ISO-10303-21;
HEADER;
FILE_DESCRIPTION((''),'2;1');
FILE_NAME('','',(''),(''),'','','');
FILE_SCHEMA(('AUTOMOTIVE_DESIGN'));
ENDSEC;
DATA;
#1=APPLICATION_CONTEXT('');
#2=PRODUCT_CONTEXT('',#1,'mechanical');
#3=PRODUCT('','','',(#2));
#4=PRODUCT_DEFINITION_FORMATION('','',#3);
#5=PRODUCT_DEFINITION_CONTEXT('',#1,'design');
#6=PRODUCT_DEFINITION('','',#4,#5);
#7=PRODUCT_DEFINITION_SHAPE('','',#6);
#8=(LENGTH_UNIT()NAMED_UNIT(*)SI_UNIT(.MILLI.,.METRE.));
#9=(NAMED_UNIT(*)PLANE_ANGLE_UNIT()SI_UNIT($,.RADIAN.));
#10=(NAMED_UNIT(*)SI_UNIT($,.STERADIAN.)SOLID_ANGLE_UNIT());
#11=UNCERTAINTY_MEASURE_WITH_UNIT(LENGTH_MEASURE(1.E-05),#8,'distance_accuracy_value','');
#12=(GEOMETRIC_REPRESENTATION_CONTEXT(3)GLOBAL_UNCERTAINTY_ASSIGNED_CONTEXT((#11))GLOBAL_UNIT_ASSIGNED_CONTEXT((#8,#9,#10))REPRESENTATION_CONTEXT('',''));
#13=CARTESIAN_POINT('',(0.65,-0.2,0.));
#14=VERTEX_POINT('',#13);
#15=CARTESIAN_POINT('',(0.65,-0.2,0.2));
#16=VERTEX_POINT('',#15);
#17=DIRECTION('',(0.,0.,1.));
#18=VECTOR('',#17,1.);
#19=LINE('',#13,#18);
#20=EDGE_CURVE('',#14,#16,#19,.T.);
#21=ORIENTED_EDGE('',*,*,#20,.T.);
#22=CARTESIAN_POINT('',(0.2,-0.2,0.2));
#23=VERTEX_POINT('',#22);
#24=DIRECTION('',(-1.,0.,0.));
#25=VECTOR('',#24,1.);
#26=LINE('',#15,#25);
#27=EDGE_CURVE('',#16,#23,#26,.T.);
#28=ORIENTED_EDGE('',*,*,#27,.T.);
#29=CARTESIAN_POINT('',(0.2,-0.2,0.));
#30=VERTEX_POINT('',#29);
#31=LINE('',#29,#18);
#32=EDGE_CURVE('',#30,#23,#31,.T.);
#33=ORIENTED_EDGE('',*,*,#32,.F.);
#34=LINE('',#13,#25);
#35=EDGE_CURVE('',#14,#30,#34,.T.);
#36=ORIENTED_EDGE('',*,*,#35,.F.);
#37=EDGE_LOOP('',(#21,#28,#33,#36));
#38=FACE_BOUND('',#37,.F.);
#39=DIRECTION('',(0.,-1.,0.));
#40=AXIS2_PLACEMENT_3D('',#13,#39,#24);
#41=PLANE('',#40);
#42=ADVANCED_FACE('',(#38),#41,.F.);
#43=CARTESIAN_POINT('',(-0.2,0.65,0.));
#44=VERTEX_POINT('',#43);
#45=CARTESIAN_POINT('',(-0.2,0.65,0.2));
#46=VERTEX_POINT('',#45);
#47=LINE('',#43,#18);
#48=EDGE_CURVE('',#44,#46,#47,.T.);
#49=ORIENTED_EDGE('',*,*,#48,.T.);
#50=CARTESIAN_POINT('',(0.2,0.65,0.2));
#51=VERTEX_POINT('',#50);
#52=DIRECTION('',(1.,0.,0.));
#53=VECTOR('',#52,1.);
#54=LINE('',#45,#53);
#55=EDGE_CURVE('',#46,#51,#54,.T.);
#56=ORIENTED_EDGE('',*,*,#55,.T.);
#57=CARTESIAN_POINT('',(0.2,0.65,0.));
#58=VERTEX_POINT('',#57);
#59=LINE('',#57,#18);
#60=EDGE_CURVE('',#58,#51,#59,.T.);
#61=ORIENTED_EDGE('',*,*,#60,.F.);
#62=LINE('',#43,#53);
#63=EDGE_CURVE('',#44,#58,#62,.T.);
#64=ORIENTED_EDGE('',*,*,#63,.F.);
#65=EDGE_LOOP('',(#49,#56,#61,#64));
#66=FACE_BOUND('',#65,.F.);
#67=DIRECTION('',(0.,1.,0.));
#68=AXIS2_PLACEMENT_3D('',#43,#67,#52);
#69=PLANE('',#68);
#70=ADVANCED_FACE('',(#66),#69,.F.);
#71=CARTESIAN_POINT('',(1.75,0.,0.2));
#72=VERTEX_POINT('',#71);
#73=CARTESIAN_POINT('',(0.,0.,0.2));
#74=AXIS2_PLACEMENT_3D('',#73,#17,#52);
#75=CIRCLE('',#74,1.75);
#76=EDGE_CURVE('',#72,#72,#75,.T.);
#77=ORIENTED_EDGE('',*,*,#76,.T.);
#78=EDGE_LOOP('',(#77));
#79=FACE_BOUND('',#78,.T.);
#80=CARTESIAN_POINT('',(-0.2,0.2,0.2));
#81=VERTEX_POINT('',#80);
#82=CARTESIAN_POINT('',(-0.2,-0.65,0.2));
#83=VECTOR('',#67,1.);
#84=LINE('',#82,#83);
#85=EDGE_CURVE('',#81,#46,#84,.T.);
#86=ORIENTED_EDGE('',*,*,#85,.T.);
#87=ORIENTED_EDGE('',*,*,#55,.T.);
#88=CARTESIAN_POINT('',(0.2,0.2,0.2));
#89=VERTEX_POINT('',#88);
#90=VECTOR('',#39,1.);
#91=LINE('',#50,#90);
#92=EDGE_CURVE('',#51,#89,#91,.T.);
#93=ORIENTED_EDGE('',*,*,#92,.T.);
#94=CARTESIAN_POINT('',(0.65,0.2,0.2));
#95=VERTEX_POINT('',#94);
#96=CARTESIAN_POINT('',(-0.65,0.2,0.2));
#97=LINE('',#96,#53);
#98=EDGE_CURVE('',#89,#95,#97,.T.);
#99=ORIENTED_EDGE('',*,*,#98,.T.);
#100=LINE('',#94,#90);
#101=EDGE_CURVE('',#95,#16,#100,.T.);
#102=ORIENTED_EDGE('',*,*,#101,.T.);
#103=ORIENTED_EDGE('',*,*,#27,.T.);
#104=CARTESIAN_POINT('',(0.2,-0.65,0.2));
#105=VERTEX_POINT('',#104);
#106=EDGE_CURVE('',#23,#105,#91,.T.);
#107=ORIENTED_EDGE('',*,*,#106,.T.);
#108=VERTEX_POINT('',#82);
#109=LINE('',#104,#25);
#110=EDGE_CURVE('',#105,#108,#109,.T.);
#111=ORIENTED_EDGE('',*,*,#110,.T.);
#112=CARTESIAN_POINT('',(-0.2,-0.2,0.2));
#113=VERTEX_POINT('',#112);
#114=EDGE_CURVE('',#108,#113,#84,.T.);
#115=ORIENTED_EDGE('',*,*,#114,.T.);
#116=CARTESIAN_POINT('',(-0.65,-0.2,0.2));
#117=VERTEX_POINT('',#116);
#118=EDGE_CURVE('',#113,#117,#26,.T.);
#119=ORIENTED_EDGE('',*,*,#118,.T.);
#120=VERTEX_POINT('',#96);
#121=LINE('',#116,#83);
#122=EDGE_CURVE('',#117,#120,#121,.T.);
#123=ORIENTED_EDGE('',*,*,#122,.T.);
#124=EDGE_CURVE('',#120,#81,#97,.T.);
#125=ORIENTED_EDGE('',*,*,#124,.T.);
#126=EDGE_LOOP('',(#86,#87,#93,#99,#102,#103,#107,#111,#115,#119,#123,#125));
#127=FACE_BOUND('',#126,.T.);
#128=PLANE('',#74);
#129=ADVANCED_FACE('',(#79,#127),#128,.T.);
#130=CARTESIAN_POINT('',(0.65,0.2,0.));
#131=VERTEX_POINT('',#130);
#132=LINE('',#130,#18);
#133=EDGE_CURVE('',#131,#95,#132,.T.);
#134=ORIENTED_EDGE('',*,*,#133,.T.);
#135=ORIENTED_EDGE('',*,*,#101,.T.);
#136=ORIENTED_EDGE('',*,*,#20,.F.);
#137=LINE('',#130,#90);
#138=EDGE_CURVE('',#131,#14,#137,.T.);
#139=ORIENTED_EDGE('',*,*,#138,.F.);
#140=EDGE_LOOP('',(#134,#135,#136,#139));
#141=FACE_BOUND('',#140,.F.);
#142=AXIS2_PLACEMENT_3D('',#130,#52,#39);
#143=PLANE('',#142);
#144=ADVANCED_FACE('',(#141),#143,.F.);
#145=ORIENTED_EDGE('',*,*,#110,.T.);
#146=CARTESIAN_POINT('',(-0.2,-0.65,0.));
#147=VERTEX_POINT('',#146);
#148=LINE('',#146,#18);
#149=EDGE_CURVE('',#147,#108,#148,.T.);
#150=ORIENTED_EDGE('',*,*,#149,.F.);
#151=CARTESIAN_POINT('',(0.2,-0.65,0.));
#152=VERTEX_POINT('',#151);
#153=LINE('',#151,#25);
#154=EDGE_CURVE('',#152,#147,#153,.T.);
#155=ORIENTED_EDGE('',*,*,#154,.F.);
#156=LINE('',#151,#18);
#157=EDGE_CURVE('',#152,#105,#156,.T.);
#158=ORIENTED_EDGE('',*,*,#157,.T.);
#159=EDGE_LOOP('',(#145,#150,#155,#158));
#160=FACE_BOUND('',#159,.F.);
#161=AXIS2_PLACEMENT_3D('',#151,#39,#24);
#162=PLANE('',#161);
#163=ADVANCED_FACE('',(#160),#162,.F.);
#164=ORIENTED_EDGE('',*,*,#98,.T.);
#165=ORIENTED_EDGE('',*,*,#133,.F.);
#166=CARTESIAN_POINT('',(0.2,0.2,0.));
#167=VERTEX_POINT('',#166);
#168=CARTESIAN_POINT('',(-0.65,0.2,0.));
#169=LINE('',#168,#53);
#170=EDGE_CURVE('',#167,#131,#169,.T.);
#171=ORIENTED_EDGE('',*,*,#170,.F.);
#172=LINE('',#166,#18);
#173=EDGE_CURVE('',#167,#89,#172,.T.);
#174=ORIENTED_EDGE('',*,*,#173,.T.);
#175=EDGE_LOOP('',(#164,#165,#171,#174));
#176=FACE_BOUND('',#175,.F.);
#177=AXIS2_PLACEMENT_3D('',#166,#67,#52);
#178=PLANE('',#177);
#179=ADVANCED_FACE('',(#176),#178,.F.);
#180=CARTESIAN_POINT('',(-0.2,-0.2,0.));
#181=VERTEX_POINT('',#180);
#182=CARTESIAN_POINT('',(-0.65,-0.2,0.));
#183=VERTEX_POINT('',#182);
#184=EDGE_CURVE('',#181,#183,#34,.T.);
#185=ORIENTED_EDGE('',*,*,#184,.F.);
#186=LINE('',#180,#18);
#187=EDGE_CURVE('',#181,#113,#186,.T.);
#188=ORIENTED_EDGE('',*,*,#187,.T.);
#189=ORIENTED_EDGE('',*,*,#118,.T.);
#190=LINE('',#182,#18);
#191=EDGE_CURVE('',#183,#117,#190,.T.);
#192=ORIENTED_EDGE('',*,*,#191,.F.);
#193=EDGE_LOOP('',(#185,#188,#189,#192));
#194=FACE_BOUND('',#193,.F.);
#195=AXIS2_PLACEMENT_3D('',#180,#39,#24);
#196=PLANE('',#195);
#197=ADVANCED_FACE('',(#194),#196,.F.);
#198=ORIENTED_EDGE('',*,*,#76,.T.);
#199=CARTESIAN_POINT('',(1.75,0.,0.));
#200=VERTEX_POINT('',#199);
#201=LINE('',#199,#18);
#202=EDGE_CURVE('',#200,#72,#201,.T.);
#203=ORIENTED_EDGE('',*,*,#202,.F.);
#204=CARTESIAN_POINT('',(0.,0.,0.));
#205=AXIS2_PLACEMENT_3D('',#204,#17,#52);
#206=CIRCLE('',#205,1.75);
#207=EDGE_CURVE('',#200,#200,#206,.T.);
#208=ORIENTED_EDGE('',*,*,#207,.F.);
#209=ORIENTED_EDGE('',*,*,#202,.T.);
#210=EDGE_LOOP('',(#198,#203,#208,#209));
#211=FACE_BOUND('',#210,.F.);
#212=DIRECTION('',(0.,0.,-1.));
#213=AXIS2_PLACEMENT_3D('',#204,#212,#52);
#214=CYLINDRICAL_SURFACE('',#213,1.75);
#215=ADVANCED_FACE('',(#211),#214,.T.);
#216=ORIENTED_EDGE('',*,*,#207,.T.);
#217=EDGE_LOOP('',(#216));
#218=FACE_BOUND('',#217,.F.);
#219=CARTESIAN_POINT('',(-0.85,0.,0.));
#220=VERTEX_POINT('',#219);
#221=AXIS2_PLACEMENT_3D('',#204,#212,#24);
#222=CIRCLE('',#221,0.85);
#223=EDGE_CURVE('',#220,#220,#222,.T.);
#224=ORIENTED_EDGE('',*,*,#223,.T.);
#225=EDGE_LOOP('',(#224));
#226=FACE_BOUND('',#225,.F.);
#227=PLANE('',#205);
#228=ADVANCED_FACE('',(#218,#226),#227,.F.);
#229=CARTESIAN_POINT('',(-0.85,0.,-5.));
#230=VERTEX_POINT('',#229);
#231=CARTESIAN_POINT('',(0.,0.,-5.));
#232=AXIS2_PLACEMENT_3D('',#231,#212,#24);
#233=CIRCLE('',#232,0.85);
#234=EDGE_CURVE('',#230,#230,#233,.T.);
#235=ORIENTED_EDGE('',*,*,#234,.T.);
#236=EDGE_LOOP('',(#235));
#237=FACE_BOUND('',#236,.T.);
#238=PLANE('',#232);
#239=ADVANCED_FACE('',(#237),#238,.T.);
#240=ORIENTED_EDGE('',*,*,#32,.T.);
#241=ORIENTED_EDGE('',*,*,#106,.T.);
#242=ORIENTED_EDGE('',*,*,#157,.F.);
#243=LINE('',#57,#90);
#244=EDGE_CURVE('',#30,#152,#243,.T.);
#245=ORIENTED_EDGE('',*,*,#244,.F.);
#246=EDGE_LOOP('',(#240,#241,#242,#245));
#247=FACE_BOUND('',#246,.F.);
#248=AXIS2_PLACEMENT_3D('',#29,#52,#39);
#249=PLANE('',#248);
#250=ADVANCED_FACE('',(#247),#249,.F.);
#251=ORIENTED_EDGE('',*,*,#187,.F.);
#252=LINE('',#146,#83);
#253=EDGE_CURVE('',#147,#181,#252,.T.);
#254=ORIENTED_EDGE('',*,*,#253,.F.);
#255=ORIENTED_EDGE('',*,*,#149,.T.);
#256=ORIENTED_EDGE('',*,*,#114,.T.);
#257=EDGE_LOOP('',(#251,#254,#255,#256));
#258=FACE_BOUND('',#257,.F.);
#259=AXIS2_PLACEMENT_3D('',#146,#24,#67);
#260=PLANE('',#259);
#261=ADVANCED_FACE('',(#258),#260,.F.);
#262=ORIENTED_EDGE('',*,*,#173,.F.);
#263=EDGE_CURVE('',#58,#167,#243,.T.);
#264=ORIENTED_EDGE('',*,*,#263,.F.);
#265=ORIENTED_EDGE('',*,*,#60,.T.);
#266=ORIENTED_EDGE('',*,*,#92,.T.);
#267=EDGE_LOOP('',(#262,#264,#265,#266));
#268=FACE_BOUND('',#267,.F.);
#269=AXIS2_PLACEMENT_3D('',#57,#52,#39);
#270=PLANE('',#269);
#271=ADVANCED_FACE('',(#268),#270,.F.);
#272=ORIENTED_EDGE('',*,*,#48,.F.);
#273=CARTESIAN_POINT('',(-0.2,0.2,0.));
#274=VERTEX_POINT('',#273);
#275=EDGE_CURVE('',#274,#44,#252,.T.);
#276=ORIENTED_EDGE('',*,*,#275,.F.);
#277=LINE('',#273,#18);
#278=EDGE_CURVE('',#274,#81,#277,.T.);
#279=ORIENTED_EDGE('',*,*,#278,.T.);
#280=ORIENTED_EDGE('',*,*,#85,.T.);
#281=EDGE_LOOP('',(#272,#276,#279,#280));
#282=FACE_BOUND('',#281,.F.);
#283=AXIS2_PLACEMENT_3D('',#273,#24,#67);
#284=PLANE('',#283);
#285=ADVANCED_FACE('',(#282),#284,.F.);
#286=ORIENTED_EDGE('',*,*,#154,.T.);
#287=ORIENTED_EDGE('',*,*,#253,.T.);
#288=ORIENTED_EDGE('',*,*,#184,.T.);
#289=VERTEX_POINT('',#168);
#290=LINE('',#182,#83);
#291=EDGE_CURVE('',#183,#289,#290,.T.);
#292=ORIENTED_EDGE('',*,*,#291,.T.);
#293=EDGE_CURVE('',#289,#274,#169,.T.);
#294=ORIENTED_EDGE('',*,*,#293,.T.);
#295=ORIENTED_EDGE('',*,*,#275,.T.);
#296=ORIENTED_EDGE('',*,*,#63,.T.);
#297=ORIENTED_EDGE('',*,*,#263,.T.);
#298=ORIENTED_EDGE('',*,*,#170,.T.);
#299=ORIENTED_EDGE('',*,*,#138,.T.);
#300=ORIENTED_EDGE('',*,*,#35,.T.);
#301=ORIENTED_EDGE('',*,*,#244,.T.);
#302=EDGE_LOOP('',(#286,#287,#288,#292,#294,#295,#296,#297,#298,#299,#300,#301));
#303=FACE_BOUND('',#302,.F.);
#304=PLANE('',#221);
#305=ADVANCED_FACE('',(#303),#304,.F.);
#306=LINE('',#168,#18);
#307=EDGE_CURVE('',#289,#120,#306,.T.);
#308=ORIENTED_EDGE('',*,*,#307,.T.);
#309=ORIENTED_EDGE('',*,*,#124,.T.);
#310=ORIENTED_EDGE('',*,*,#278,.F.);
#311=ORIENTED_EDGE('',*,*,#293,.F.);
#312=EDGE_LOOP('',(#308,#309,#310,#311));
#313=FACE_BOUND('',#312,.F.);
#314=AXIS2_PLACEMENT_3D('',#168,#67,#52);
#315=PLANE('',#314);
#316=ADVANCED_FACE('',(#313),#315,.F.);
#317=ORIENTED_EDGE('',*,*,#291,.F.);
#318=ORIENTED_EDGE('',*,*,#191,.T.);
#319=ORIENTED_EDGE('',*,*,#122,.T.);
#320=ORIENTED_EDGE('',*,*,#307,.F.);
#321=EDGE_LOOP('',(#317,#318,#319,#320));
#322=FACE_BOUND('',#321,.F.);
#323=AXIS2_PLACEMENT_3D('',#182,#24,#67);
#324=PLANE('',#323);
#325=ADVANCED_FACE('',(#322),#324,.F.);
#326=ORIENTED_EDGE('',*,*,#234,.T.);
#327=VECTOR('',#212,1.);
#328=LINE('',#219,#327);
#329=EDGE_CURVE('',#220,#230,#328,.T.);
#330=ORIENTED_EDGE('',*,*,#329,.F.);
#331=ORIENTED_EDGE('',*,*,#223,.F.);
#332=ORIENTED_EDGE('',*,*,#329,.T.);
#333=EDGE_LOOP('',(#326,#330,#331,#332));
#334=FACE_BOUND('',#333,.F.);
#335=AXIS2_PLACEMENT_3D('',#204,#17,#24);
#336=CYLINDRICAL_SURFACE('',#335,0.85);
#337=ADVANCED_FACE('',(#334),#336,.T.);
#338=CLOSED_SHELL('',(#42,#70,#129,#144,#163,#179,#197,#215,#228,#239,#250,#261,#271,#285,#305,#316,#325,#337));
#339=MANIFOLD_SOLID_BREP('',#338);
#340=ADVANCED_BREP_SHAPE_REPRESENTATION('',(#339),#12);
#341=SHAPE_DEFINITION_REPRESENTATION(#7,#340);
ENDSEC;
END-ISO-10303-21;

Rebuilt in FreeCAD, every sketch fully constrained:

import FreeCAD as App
import Part
import Sketcher

doc = App.newDocument("Part")
body = doc.addObject("PartDesign::Body", "Body")

# Sketch on XY plane
sketch1 = doc.addObject("Sketcher::SketchObject", "Sketch")
body.addObject(sketch1)
sketch1.AttachmentSupport = (doc.XY_Plane, [""])
sketch1.MapMode = "FlatFace"
sketch1.addGeometry([
    Part.Circle(App.Vector(0, 0, 0), App.Vector(0, 0, 1), 1.75),  # 0
    Part.LineSegment(App.Vector(0.2, -0.2, 0), App.Vector(0.2, -0.65, 0)),  # 1
    Part.LineSegment(App.Vector(0.2, -0.65, 0), App.Vector(-0.2, -0.65, 0)),  # 2
    Part.LineSegment(App.Vector(-0.2, -0.65, 0), App.Vector(-0.2, -0.2, 0)),  # 3
    Part.LineSegment(App.Vector(-0.2, -0.2, 0), App.Vector(-0.65, -0.2, 0)),  # 4
    Part.LineSegment(App.Vector(-0.65, -0.2, 0), App.Vector(-0.65, 0.2, 0)),  # 5
    Part.LineSegment(App.Vector(-0.65, 0.2, 0), App.Vector(-0.2, 0.2, 0)),  # 6
    Part.LineSegment(App.Vector(-0.2, 0.2, 0), App.Vector(-0.2, 0.65, 0)),  # 7
    Part.LineSegment(App.Vector(-0.2, 0.65, 0), App.Vector(0.2, 0.65, 0)),  # 8
    Part.LineSegment(App.Vector(0.2, 0.65, 0), App.Vector(0.2, 0.2, 0)),  # 9
    Part.LineSegment(App.Vector(0.2, 0.2, 0), App.Vector(0.65, 0.2, 0)),  # 10
    Part.LineSegment(App.Vector(0.65, 0.2, 0), App.Vector(0.65, -0.2, 0)),  # 11
    Part.LineSegment(App.Vector(0.65, -0.2, 0), App.Vector(0.2, -0.2, 0)),  # 12
], False)
sketch1.addConstraint([
    Sketcher.Constraint("Coincident", 1, 2, 2, 1),
    Sketcher.Constraint("Coincident", 2, 2, 3, 1),
    Sketcher.Constraint("Coincident", 3, 2, 4, 1),
    Sketcher.Constraint("Coincident", 4, 2, 5, 1),
    Sketcher.Constraint("Coincident", 5, 2, 6, 1),
    Sketcher.Constraint("Coincident", 6, 2, 7, 1),
    Sketcher.Constraint("Coincident", 7, 2, 8, 1),
    Sketcher.Constraint("Coincident", 8, 2, 9, 1),
    Sketcher.Constraint("Coincident", 9, 2, 10, 1),
    Sketcher.Constraint("Coincident", 10, 2, 11, 1),
    Sketcher.Constraint("Coincident", 11, 2, 12, 1),
    Sketcher.Constraint("Coincident", 12, 2, 1, 1),
    Sketcher.Constraint("Vertical", 1),
    Sketcher.Constraint("Horizontal", 2),
    Sketcher.Constraint("Vertical", 3),
    Sketcher.Constraint("Horizontal", 4),
    Sketcher.Constraint("Vertical", 5),
    Sketcher.Constraint("Horizontal", 6),
    Sketcher.Constraint("Vertical", 7),
    Sketcher.Constraint("Horizontal", 8),
    Sketcher.Constraint("Vertical", 9),
    Sketcher.Constraint("Horizontal", 10),
    Sketcher.Constraint("Vertical", 11),
    Sketcher.Constraint("Horizontal", 12),
    Sketcher.Constraint("Coincident", 0, 3, -1, 1),
    Sketcher.Constraint("Symmetric", 1, 2, 7, 2, -1, 1),
    Sketcher.Constraint("Symmetric", 3, 2, 9, 2, -1, 1),
    Sketcher.Constraint("Symmetric", 5, 2, 11, 2, -1, 1),
    Sketcher.Constraint("Symmetric", 6, 2, 9, 2, -2),
    Sketcher.Constraint("Equal", 12, 1),
    Sketcher.Constraint("Equal", 8, 5),
    Sketcher.Constraint("Diameter", 0, 3.5),
    Sketcher.Constraint("DistanceX", 2, 2, 2, 1, 0.4),
    Sketcher.Constraint("DistanceX", 4, 2, 4, 1, 0.45),
])
pad1 = doc.addObject("PartDesign::Pad", "Pad")
body.addObject(pad1)
pad1.Profile = sketch1
pad1.Length = 0.2

# Sketch on XY plane
sketch2 = doc.addObject("Sketcher::SketchObject", "Sketch001")
body.addObject(sketch2)
sketch2.AttachmentSupport = (doc.XY_Plane, [""])
sketch2.MapMode = "FlatFace"
sketch2.addGeometry(Part.Circle(App.Vector(0, 0, 0), App.Vector(0, 0, 1), 0.8), False)
sketch2.addConstraint([
    Sketcher.Constraint("Coincident", 0, 3, -1, 1),
    Sketcher.Constraint("Diameter", 0, 1.7),
])
pad2 = doc.addObject("PartDesign::Pad", "Pad001")
body.addObject(pad2)
pad2.Profile = sketch2
pad2.Length = 5
pad2.Reversed = True

doc.recompute()
